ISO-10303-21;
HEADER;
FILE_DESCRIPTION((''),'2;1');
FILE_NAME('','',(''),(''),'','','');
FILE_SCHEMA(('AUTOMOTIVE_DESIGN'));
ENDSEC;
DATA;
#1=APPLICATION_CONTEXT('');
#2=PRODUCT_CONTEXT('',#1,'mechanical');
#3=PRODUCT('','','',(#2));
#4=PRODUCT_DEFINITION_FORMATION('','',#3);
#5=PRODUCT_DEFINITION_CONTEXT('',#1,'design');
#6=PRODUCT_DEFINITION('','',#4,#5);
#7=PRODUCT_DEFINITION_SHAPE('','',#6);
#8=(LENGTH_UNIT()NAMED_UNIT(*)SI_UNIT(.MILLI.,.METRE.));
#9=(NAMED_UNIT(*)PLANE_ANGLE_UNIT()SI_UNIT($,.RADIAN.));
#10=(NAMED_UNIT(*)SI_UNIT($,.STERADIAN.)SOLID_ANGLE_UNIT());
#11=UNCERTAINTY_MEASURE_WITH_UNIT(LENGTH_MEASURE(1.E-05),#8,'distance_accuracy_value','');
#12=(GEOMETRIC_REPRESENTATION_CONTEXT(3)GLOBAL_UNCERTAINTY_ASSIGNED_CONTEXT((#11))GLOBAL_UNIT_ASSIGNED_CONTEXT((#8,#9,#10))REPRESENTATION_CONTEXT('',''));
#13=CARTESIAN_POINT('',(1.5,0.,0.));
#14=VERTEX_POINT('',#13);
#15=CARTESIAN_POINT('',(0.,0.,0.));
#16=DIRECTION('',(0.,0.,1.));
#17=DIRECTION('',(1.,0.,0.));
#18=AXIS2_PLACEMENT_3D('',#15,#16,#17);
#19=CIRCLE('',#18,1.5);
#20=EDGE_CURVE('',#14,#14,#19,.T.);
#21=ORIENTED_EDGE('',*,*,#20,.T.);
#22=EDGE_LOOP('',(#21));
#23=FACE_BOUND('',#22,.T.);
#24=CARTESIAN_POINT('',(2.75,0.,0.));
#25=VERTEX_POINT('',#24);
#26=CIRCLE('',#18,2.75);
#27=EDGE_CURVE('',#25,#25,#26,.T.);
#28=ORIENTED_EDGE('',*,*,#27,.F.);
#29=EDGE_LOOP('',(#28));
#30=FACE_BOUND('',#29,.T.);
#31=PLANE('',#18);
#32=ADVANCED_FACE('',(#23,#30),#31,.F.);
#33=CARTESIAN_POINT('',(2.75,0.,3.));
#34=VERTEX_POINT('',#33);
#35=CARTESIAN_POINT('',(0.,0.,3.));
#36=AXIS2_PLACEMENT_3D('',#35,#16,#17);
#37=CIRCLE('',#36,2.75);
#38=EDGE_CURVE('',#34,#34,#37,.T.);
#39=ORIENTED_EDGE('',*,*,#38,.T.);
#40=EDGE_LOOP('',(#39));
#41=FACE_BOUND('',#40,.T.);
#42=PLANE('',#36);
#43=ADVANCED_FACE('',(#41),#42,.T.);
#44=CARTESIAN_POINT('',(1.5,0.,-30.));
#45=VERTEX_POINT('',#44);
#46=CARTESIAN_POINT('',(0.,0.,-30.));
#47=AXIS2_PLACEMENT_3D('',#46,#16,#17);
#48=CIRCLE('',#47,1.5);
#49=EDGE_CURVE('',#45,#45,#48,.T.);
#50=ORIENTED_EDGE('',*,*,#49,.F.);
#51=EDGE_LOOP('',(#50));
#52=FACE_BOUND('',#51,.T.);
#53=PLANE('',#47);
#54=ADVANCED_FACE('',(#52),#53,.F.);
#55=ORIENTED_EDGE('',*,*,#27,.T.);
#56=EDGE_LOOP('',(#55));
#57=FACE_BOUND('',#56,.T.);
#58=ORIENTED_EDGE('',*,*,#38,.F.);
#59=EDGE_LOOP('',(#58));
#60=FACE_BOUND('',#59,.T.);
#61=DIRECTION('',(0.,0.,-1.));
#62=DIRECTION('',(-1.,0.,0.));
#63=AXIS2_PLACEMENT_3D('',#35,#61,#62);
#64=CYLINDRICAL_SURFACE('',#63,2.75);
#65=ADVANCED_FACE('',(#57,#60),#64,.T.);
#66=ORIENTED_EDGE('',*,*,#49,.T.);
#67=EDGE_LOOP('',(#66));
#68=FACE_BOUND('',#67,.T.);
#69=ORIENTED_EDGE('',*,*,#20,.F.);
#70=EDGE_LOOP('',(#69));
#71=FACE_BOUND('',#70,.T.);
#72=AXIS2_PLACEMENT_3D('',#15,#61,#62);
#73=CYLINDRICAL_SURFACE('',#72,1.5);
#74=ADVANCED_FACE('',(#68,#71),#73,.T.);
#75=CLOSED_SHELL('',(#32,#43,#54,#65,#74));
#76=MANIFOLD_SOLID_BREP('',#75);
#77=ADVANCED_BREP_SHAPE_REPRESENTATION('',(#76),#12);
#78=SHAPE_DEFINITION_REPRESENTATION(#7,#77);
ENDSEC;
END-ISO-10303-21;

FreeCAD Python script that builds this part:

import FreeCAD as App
import Part
import Sketcher

V = App.Vector
Q = App.Units.Quantity

doc = App.newDocument("Part")
params = doc.addObject("Spreadsheet::Sheet", "Params")
for row, (alias, value) in enumerate([
    ("sketch1_diameter", "3 mm"),
    ("pad1_length", "30 mm"),
    ("sketch2_diameter", "5.5 mm"),
    ("pad2_length", "3 mm"),
], start=1):
    params.set(f"A{row}", alias)
    params.set(f"B{row}", "=" + value)
    params.setAlias(f"B{row}", alias)

body = doc.addObject("PartDesign::Body", "Body")

sketch1 = body.newObject("Sketcher::SketchObject", "Sketch")
sketch1.AttachmentSupport = (doc.getObject("XY_Plane"), [""])
sketch1.MapMode = "FlatFace"
sketch1.AttachmentOffset = App.Placement(V(0, 0, -30), App.Rotation())
sketch1.addGeometry(Part.Circle(V(0, 0, 0), V(0, 0, 1), 1.5), False)
sketch1.addConstraint([
    Sketcher.Constraint("Coincident", 0, 3, -1, 1),
    Sketcher.Constraint("Diameter", 0, Q("3 mm")),
])
sketch1.setExpression("Constraints[1]", "Params.sketch1_diameter")
pad1 = body.newObject("PartDesign::Pad", "Pad")
pad1.Profile = sketch1
pad1.setExpression("Length", "Params.pad1_length")

sketch2 = body.newObject("Sketcher::SketchObject", "Sketch001")
sketch2.AttachmentSupport = (doc.getObject("XY_Plane"), [""])
sketch2.MapMode = "FlatFace"
sketch2.addGeometry(Part.Circle(V(0, 0, 0), V(0, 0, 1), 2.75), False)
sketch2.addConstraint([
    Sketcher.Constraint("Coincident", 0, 3, -1, 1),
    Sketcher.Constraint("Diameter", 0, Q("5.5 mm")),
])
sketch2.setExpression("Constraints[1]", "Params.sketch2_diameter")
pad2 = body.newObject("PartDesign::Pad", "Pad001")
pad2.Profile = sketch2
pad2.setExpression("Length", "Params.pad2_length")

doc.recompute()
